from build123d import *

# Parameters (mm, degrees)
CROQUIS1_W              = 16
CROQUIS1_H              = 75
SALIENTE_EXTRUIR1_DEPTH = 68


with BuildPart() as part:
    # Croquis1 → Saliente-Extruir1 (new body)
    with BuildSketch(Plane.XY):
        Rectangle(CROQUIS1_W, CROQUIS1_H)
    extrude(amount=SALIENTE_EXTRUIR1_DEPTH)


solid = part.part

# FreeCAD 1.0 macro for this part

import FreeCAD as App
import Part
import Sketcher

V = App.Vector
Q = App.Units.Quantity


def add_polygon(sketch, points):
    """Adds a closed chain of lines whose ends are joined by coincident constraints."""
    first, n = sketch.GeometryCount, len(points)
    for a, b in zip(points, points[1:] + points[:1]):
        sketch.addGeometry(Part.LineSegment(App.Vector(*a, 0), App.Vector(*b, 0)), False)
    for i in range(n):
        sketch.addConstraint(Sketcher.Constraint("Coincident", first + i, 2, first + (i + 1) % n, 1))

doc = App.newDocument("Part")
params = doc.addObject("Spreadsheet::Sheet", "Params")
for row, (alias, value) in enumerate([
    ("sketch1_width", "16 mm"),
    ("sketch1_height", "75 mm"),
    ("pad1_length", "68 mm"),
], start=1):
    params.set(f"A{row}", alias)
    params.set(f"B{row}", "=" + value)
    params.setAlias(f"B{row}", alias)

body = doc.addObject("PartDesign::Body", "Body")

# Sketch on XY plane
sketch1 = body.newObject("Sketcher::SketchObject", "Sketch")
sketch1.AttachmentSupport = (doc.getObject("XY_Plane"), [""])
sketch1.MapMode = "FlatFace"
add_polygon(sketch1, [(-8, 37.5), (-8, -37.5), (8, -37.5), (8, 37.5)])  # lines 0-3
sketch1.addConstraint([
    Sketcher.Constraint("Vertical", 0),
    Sketcher.Constraint("Horizontal", 1),
    Sketcher.Constraint("Vertical", 2),
    Sketcher.Constraint("Horizontal", 3),
    Sketcher.Constraint("Symmetric", 0, 2, 2, 2, -1, 1),
    Sketcher.Constraint("DistanceX", 1, 1, 1, 2, Q("16 mm")),
    Sketcher.Constraint("DistanceY", 0, 2, 0, 1, Q("75 mm")),
])
sketch1.setExpression("Constraints[9]", "Params.sketch1_width")
sketch1.setExpression("Constraints[10]", "Params.sketch1_height")
pad1 = body.newObject("PartDesign::Pad", "Pad")
pad1.Profile = sketch1
pad1.setExpression("Length", "Params.pad1_length")

doc.recompute()
